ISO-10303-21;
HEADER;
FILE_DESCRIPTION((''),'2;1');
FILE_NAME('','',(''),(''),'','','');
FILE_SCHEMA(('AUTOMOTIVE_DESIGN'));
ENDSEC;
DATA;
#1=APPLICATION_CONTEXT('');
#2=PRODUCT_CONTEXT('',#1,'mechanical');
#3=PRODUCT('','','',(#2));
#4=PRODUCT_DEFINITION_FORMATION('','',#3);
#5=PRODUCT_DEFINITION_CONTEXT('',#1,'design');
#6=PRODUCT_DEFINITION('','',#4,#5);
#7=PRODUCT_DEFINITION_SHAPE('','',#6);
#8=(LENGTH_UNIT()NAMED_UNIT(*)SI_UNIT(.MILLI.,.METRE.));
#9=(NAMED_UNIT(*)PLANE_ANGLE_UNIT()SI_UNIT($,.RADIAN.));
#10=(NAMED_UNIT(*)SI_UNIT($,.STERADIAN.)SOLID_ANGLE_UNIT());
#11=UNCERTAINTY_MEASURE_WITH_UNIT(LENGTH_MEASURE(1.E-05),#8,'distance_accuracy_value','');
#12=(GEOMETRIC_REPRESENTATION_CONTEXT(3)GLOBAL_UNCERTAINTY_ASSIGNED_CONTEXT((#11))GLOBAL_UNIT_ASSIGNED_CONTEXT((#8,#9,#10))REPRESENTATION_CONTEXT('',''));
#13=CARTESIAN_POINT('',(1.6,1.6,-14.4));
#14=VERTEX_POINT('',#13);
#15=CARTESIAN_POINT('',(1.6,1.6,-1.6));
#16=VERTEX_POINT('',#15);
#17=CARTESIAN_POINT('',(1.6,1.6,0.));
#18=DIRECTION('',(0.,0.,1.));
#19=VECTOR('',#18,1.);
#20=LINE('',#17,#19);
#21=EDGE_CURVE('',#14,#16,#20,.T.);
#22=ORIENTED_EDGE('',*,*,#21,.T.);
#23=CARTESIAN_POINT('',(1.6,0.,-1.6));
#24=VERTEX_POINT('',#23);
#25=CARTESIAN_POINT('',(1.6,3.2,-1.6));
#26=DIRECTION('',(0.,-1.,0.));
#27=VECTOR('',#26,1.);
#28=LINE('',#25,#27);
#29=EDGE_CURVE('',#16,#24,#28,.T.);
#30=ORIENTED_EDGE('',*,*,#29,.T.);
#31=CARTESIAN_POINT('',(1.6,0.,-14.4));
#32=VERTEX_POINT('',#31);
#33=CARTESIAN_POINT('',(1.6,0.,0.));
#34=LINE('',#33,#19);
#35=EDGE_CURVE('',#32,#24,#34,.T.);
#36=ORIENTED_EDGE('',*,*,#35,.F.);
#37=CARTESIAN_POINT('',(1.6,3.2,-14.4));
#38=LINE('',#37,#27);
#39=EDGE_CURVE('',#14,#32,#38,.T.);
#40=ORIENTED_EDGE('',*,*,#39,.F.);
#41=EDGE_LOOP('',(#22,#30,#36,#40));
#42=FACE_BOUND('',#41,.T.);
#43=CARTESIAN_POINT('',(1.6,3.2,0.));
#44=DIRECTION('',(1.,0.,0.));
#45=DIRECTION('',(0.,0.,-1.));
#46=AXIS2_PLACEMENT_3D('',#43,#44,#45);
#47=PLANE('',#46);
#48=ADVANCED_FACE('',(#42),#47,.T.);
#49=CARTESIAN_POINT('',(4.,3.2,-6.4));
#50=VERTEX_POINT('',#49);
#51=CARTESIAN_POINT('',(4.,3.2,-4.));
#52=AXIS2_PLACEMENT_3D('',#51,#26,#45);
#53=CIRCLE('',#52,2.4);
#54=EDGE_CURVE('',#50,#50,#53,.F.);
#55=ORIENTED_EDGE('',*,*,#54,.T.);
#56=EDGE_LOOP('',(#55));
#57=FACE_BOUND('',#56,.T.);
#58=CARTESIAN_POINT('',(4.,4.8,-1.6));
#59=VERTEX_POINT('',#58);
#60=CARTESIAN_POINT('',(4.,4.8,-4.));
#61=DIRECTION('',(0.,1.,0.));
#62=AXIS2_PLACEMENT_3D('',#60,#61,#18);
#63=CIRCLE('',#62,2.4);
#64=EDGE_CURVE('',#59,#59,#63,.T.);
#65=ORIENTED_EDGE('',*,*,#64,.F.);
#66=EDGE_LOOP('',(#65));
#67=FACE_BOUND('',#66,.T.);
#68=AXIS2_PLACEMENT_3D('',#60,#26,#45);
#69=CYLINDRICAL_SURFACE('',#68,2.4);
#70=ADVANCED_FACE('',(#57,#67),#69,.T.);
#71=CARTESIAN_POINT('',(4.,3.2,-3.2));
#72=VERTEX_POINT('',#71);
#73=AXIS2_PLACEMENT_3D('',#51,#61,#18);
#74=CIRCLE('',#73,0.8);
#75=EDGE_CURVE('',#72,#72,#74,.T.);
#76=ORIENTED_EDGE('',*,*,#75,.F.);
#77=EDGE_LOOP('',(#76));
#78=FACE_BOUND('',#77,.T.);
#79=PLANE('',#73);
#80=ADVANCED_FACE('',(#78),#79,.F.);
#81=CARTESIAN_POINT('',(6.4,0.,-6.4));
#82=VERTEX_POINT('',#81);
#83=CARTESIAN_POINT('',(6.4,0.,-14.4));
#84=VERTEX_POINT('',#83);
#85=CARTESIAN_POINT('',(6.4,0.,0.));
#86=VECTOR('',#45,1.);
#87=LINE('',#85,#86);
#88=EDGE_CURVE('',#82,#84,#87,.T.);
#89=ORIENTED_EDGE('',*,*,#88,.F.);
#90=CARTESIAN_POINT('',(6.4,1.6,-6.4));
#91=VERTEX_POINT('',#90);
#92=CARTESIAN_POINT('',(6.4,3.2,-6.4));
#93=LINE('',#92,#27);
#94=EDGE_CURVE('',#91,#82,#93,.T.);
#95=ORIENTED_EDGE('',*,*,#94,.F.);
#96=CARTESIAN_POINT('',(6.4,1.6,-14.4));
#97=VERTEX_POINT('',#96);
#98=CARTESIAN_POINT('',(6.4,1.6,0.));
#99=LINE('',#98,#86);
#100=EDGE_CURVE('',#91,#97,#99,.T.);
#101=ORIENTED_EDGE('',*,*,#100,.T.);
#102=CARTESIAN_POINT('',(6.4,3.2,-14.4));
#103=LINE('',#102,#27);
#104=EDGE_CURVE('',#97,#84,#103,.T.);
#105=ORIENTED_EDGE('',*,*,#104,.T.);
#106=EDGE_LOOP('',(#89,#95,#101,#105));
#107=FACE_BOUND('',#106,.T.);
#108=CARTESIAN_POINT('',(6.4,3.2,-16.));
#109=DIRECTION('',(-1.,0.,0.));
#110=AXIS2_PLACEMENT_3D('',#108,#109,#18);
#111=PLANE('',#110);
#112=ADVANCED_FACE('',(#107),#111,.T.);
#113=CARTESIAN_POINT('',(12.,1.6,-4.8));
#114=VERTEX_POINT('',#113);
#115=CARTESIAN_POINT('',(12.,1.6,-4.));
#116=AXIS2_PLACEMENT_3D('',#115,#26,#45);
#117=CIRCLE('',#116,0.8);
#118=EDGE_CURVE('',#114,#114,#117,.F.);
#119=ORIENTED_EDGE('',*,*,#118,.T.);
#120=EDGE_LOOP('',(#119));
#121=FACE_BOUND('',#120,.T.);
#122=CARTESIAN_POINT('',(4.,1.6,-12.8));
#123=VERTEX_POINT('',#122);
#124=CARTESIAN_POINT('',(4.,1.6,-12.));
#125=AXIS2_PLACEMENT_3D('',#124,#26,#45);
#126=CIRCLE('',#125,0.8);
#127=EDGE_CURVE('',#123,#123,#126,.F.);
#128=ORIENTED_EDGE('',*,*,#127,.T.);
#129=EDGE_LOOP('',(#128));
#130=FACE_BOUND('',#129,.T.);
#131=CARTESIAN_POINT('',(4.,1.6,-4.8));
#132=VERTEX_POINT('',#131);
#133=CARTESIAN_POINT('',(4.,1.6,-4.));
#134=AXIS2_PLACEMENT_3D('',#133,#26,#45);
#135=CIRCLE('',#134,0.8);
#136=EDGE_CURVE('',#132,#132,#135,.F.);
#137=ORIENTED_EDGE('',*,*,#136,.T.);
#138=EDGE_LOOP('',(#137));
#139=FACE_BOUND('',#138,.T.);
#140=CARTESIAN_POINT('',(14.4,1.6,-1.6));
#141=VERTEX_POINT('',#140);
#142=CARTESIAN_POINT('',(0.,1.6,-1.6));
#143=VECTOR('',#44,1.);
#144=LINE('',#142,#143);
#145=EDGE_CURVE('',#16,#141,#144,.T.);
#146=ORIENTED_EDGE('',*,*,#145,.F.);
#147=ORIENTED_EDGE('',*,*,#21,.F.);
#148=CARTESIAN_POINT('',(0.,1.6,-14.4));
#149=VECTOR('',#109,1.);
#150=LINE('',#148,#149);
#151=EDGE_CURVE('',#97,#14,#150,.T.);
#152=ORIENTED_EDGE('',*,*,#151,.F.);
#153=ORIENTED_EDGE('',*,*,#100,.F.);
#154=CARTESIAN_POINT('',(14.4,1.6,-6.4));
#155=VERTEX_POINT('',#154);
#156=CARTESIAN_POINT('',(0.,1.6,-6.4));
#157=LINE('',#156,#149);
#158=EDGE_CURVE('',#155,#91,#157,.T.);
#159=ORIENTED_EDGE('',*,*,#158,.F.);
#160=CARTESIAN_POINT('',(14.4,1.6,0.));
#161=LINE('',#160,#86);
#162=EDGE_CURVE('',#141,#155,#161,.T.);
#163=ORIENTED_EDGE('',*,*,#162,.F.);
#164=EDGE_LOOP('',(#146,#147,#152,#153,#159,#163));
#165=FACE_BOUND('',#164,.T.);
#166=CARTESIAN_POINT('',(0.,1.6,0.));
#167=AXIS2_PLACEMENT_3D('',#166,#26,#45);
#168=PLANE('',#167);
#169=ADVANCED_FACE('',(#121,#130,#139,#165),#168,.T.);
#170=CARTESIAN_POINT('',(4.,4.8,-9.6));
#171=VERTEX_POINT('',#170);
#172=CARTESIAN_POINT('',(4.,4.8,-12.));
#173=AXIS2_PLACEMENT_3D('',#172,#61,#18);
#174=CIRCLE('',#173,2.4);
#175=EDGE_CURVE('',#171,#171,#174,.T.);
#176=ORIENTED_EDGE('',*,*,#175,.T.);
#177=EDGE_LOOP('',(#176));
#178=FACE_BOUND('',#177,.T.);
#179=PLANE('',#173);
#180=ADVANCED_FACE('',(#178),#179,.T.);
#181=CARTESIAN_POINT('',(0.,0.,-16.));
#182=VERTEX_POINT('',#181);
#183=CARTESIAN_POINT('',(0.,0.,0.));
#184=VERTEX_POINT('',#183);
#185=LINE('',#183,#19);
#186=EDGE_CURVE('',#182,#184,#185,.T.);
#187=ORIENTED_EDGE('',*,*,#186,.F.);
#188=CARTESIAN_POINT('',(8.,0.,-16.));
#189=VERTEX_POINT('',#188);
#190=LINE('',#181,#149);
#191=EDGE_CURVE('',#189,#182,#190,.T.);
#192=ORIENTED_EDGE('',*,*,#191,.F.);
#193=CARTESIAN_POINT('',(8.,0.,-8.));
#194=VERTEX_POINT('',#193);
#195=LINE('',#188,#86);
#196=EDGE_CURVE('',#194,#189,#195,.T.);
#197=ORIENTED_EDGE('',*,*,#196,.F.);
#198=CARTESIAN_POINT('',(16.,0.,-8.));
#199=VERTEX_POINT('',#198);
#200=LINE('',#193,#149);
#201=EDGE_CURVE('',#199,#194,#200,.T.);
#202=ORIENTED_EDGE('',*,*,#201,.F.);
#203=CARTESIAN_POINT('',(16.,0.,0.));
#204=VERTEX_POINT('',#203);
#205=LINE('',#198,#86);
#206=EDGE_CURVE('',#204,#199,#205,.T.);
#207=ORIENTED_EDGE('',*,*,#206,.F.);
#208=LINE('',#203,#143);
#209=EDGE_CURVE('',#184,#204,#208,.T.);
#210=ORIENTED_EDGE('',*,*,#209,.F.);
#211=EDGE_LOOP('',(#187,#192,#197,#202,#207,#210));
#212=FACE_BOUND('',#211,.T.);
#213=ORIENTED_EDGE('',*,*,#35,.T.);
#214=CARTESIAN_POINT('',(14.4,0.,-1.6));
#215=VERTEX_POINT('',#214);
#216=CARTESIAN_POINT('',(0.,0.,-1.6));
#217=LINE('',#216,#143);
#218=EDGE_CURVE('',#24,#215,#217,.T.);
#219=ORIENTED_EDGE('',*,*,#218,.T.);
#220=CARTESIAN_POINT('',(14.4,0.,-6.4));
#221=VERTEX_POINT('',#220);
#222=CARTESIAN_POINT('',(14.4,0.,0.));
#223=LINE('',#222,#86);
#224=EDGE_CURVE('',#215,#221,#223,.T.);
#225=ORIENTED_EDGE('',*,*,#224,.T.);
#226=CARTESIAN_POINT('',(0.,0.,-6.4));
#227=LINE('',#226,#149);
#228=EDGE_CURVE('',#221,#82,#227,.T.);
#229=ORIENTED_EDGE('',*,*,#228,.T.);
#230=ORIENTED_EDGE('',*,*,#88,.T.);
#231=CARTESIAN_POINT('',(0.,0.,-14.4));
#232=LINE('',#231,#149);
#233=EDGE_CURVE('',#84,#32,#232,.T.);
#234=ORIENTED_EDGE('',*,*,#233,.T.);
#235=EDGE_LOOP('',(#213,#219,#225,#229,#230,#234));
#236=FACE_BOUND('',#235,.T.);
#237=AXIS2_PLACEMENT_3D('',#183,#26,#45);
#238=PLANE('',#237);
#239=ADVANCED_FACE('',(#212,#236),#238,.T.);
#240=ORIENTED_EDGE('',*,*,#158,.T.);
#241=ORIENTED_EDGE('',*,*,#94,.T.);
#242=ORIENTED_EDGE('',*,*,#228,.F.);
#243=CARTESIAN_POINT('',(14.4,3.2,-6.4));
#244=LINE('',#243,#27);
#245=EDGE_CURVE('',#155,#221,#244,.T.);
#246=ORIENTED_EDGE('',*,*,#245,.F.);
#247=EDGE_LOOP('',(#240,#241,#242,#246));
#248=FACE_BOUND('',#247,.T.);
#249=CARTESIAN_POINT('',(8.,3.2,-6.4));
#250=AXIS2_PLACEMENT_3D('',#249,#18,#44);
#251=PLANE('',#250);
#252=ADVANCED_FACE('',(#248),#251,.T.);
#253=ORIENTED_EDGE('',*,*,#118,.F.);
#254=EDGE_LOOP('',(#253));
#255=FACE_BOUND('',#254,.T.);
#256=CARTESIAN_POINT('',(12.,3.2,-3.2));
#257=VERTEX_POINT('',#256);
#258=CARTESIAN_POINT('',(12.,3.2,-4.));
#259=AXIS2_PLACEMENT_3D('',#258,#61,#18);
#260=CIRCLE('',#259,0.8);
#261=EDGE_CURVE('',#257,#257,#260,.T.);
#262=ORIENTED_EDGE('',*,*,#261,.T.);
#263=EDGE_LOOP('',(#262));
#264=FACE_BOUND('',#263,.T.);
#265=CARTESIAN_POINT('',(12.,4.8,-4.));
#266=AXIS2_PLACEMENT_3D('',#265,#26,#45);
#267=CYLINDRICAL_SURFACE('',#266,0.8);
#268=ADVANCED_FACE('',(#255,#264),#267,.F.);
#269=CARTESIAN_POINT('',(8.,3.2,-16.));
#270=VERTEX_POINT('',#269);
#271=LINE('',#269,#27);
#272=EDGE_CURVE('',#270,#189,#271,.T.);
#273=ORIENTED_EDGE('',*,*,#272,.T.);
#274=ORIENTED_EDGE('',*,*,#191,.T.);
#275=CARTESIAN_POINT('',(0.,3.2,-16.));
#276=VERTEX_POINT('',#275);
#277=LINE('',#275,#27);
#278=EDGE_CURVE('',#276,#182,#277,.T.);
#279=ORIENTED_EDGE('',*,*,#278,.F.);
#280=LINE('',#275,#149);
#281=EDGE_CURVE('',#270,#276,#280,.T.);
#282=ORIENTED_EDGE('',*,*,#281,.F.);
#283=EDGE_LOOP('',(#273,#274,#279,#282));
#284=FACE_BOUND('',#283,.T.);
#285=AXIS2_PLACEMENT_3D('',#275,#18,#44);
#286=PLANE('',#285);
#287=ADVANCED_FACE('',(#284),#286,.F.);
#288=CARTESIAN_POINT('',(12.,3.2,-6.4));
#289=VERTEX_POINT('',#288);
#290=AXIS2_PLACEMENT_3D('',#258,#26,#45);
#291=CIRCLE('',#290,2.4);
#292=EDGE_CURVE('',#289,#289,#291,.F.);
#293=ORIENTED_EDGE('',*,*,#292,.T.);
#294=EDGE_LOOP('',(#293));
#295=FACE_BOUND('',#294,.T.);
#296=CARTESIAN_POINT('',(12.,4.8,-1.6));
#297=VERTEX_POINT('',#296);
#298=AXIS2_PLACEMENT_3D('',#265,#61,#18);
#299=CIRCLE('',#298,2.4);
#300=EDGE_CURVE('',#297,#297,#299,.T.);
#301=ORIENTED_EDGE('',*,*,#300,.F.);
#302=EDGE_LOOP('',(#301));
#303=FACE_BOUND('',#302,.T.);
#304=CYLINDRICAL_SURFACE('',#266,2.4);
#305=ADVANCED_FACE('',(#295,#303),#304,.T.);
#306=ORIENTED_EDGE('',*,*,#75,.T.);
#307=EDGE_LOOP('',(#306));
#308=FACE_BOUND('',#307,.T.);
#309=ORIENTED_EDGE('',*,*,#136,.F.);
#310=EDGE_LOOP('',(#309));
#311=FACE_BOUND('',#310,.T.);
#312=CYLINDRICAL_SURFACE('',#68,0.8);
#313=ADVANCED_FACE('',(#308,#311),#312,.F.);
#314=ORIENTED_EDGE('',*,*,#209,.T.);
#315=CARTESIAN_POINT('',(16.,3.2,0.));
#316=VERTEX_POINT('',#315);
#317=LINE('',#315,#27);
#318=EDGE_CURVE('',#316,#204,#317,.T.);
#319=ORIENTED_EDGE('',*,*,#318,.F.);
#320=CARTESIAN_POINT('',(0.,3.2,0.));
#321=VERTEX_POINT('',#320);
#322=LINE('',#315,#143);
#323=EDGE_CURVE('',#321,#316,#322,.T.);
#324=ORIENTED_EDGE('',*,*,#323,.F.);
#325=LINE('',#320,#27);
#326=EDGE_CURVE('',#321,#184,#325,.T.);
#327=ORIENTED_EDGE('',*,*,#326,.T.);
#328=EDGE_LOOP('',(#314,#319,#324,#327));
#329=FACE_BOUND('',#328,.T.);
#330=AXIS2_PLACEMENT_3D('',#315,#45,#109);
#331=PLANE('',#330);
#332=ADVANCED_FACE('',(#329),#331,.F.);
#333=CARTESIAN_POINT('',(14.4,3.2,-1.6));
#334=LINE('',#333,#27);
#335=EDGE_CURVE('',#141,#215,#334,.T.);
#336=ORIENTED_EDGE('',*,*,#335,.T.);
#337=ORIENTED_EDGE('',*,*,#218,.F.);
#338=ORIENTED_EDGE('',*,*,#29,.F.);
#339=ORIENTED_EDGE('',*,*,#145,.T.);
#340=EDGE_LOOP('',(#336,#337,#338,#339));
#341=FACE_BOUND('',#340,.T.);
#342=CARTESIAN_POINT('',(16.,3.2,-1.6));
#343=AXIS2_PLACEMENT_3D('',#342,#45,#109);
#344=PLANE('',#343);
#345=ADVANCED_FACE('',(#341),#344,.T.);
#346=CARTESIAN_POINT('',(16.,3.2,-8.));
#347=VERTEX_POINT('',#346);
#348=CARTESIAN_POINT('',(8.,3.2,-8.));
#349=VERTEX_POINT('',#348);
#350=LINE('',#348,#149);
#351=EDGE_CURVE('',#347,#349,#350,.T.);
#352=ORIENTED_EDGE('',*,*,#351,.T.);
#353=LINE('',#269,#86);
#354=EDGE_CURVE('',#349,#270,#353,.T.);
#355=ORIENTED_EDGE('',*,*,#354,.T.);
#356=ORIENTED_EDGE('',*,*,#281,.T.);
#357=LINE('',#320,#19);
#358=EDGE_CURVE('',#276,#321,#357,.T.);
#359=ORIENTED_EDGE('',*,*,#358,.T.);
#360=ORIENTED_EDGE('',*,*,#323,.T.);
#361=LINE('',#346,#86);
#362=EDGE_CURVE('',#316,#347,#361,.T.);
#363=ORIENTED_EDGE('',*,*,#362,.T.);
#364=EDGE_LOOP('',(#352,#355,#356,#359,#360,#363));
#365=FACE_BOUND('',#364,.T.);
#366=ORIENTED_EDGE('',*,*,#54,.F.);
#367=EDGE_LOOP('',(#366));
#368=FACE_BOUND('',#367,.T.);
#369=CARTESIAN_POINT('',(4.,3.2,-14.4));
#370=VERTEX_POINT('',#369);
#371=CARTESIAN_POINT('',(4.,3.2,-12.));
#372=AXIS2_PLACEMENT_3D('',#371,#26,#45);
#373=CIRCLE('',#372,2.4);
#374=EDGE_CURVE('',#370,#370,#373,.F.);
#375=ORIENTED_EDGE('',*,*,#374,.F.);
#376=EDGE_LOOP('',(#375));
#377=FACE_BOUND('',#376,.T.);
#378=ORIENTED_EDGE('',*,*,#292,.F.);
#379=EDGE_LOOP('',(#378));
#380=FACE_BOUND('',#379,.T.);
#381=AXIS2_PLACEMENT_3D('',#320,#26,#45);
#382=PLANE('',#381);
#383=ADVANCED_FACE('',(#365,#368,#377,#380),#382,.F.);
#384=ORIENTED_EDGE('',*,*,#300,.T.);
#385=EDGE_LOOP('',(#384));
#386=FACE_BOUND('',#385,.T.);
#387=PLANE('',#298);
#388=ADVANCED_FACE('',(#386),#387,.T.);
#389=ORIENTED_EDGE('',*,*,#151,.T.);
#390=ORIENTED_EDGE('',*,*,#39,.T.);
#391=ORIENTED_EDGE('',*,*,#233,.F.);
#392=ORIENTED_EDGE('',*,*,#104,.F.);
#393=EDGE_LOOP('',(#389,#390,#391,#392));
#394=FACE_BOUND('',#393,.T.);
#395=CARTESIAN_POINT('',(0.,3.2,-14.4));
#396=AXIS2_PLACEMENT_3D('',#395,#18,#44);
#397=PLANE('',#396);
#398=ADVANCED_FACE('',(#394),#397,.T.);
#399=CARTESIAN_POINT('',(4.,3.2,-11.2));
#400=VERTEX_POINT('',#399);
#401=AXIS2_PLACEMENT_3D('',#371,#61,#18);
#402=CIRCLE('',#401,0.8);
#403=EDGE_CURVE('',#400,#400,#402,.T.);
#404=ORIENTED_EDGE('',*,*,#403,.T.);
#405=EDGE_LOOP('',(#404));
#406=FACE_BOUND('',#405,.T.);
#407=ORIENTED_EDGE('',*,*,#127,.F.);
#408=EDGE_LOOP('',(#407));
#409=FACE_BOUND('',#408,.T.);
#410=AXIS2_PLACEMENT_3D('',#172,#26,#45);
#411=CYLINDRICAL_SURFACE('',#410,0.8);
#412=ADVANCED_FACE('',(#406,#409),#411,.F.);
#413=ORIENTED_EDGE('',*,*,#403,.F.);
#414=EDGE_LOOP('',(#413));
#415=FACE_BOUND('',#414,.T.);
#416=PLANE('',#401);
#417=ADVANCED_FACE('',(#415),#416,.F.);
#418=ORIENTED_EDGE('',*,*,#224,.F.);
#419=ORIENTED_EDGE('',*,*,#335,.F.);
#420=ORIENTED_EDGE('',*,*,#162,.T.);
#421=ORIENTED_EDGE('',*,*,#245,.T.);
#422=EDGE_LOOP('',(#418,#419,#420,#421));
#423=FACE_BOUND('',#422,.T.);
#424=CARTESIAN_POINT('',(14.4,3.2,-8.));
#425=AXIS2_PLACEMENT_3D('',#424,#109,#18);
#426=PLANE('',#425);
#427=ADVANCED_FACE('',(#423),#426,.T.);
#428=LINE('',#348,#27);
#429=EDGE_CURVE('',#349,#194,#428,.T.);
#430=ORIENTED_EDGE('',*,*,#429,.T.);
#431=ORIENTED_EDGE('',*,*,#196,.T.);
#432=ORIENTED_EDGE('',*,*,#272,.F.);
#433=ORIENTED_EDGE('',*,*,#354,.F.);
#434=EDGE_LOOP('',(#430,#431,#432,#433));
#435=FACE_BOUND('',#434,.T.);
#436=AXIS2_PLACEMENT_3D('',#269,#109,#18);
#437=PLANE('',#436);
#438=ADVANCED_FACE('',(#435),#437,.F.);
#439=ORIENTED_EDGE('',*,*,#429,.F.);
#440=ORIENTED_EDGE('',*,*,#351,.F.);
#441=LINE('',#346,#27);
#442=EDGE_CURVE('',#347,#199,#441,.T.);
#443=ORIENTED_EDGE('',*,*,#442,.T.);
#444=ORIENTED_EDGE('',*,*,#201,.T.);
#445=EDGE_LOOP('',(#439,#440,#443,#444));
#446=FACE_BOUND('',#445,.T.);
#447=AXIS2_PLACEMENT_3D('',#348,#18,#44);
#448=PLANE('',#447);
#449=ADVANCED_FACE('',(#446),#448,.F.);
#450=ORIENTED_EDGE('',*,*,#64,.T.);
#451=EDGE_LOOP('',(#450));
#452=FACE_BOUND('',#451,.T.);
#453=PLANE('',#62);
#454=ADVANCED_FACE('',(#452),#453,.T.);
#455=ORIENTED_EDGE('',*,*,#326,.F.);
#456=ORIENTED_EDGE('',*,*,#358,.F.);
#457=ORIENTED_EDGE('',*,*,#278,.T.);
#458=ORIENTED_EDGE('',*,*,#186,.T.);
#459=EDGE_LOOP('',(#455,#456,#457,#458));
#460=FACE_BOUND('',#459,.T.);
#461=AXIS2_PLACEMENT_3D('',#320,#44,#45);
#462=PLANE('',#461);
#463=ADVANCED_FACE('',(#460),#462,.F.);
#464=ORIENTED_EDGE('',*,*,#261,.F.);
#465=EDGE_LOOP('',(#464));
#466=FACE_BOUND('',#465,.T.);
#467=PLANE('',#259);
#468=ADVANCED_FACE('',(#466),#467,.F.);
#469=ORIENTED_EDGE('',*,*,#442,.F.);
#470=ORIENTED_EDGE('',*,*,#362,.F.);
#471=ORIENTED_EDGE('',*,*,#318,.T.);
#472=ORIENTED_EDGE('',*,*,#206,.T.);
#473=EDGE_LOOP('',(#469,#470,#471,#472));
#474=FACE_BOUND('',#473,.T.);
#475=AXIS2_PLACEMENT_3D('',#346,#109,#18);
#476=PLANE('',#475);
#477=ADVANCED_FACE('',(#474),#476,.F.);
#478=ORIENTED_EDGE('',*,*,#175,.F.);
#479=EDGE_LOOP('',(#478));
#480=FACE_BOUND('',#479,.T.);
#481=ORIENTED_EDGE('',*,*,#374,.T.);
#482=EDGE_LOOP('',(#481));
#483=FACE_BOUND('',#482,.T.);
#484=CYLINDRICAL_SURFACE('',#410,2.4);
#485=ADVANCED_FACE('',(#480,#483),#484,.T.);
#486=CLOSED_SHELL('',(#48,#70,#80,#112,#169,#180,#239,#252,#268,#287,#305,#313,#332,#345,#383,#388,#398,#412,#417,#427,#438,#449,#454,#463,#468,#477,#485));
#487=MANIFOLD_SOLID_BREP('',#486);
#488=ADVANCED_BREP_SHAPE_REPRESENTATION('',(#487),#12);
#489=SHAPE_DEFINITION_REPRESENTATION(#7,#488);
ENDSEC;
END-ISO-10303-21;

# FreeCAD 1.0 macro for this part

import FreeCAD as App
import Part
import Sketcher


def faces_at(feature, points):
    """Names of the faces that lie closest to the given points."""
    faces = feature.Shape.Faces
    near = lambda p: min(range(len(faces)), key=lambda i: faces[i].distToShape(Part.Vertex(*p))[0])
    return sorted({f"Face{near(p) + 1}" for p in points})


def add_polygon(sketch, points):
    """Adds a closed chain of lines whose ends are joined by coincident constraints."""
    first, n = sketch.GeometryCount, len(points)
    for a, b in zip(points, points[1:] + points[:1]):
        sketch.addGeometry(Part.LineSegment(App.Vector(*a, 0), App.Vector(*b, 0)), False)
    for i in range(n):
        sketch.addConstraint(Sketcher.Constraint("Coincident", first + i, 2, first + (i + 1) % n, 1))

doc = App.newDocument("Part")
body = doc.addObject("PartDesign::Body", "Body")

# Sketch on XZ plane
sketch1 = doc.addObject("Sketcher::SketchObject", "Sketch")
body.addObject(sketch1)
sketch1.AttachmentSupport = (doc.XZ_Plane, [""])
sketch1.MapMode = "FlatFace"
add_polygon(sketch1, [(0, -16), (0, 0), (16, 0), (16, -8), (8, -8), (8, -16)])  # lines 0-5
sketch1.addConstraint([
    Sketcher.Constraint("Vertical", 0),
    Sketcher.Constraint("Horizontal", 1),
    Sketcher.Constraint("Vertical", 2),
    Sketcher.Constraint("Horizontal", 3),
    Sketcher.Constraint("Vertical", 4),
    Sketcher.Constraint("Horizontal", 5),
    Sketcher.Constraint("Coincident", 0, 2, -1, 1),
    Sketcher.Constraint("Equal", 3, 5),
    Sketcher.Constraint("Equal", 1, 0),
    Sketcher.Constraint("Equal", 5, 2),
    Sketcher.Constraint("DistanceX", 1, 1, 1, 2, 16.0),
])
pad1 = doc.addObject("PartDesign::Pad", "Pad")
body.addObject(pad1)
pad1.Profile = sketch1
pad1.Length = 3.2
pad1.Reversed = True

# Sketch on XZ plane
sketch2 = doc.addObject("Sketcher::SketchObject", "Sketch001")
body.addObject(sketch2)
sketch2.AttachmentSupport = (doc.XZ_Plane, [""])
sketch2.MapMode = "FlatFace"
sketch2.AttachmentOffset = App.Placement(App.Vector(0, 0, -3.2), App.Rotation())
sketch2.addGeometry([
    Part.Circle(App.Vector(4, -4, 0), App.Vector(0, 0, 1), 2.4),
    Part.Circle(App.Vector(4, -12, 0), App.Vector(0, 0, 1), 2.4),
    Part.Circle(App.Vector(12, -4, 0), App.Vector(0, 0, 1), 2.4),
], False)
sketch2.addConstraint([
    Sketcher.Constraint("Equal", 0, 1),
    Sketcher.Constraint("Equal", 1, 2),
    Sketcher.Constraint("Horizontal", 0, 3, 2, 3),
    Sketcher.Constraint("Vertical", 0, 3, 1, 3),
    Sketcher.Constraint("Diameter", 0, 4.8),
    Sketcher.Constraint("DistanceX", -1, 1, 0, 3, 4.0),
    Sketcher.Constraint("DistanceY", 0, 3, -1, 1, 4.0),
    Sketcher.Constraint("DistanceY", 1, 3, -1, 1, 12.0),
    Sketcher.Constraint("DistanceX", -1, 1, 2, 3, 12.0),
])
pad2 = doc.addObject("PartDesign::Pad", "Pad001")
body.addObject(pad2)
pad2.Profile = sketch2
pad2.Length = 1.6
pad2.Reversed = True
doc.recompute()

thickness = doc.addObject("PartDesign::Thickness", "Thickness")
body.addObject(thickness)
thickness.Base = (pad2, faces_at(pad2, [(8, 0, -8)]))
thickness.Value = 1.6
thickness.Reversed = True
thickness.Join = "Intersection"

doc.recompute()
